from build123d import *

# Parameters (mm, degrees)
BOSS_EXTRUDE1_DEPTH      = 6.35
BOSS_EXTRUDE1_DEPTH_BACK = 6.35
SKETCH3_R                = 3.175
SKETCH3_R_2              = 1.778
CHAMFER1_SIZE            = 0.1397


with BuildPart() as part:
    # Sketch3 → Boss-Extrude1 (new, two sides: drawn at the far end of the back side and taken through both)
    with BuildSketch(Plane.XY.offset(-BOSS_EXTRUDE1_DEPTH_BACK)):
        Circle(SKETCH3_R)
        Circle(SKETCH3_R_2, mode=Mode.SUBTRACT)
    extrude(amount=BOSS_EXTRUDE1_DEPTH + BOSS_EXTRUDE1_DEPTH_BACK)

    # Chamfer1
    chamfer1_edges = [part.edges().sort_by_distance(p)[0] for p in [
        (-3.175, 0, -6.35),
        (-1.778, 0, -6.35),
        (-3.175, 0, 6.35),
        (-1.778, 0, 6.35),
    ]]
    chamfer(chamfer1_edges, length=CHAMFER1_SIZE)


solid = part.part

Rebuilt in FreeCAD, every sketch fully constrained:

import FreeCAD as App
import Part
import Sketcher

V = App.Vector
Q = App.Units.Quantity


def edges_at(feature, points):
    """Names of the edges that pass closest to the given points."""
    edges = feature.Shape.Edges
    near = lambda p: min(range(len(edges)), key=lambda i: edges[i].distToShape(Part.Vertex(*p))[0])
    return sorted({f"Edge{near(p) + 1}" for p in points})

doc = App.newDocument("Part")
params = doc.addObject("Spreadsheet::Sheet", "Params")
for row, (alias, value) in enumerate([
    ("sketch1_diameter", "0.25 in"),
    ("sketch1_diameter2", "0.14 in"),
    ("pad1_length", "0.25 in"),
    ("pad1_length2", "0.25 in"),
    ("chamfer_size", "0.0055 in"),
], start=1):
    params.set(f"A{row}", alias)
    params.set(f"B{row}", "=" + value)
    params.setAlias(f"B{row}", alias)

body = doc.addObject("PartDesign::Body", "Body")

sketch1 = body.newObject("Sketcher::SketchObject", "Sketch")
sketch1.AttachmentSupport = (doc.getObject("XY_Plane"), [""])
sketch1.MapMode = "FlatFace"
sketch1.addGeometry([
    Part.Circle(V(0, 0, 0), V(0, 0, 1), 3.2),
    Part.Circle(V(0, 0, 0), V(0, 0, 1), 1.8),
], False)
sketch1.addConstraint([
    Sketcher.Constraint("Coincident", 0, 3, -1, 1),
    Sketcher.Constraint("Coincident", 1, 3, -1, 1),
    Sketcher.Constraint("Diameter", 0, Q("0.25 in")),
    Sketcher.Constraint("Diameter", 1, Q("0.14 in")),
])
sketch1.setExpression("Constraints[2]", "Params.sketch1_diameter")
sketch1.setExpression("Constraints[3]", "Params.sketch1_diameter2")
pad1 = body.newObject("PartDesign::Pad", "Pad")
pad1.Profile = sketch1
pad1.Type = "TwoLengths"
pad1.setExpression("Length", "Params.pad1_length")
pad1.setExpression("Length2", "Params.pad1_length2")
doc.recompute()

chamfer = body.newObject("PartDesign::Chamfer", "Chamfer")
chamfer.Base = (pad1, edges_at(pad1, [
    (-3.175, 0, -6.35),
    (-1.778, 0, -6.35),
    (-3.175, 0, 6.35),
    (-1.778, 0, 6.35),
]))
chamfer.setExpression("Size", "Params.chamfer_size")

doc.recompute()
